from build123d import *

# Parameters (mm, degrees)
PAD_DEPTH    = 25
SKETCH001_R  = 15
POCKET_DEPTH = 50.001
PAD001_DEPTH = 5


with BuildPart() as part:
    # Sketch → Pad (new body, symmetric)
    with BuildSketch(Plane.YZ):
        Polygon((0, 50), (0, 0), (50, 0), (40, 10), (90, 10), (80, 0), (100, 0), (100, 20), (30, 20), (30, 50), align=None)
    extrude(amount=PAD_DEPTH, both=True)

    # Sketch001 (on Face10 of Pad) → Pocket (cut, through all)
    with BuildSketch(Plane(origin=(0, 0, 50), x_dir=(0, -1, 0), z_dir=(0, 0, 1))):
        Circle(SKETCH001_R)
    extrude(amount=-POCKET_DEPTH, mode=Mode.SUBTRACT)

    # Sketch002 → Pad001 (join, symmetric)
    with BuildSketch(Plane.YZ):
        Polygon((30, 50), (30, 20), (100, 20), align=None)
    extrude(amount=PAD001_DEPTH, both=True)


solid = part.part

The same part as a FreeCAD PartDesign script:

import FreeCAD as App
import Part
import Sketcher
from FreeCAD import Vector

doc = App.newDocument("Part")
body = doc.addObject("PartDesign::Body", "Body")

# Sketch on YZ plane
sketch1 = doc.addObject("Sketcher::SketchObject", "Sketch")
body.addObject(sketch1)
sketch1.AttachmentSupport = (doc.YZ_Plane, [""])
sketch1.MapMode = "FlatFace"
sketch1.addGeometry(Part.LineSegment(Vector(0, 50, 0), Vector(0, 0, 0)), False)
sketch1.addGeometry(Part.LineSegment(Vector(0, 0, 0), Vector(50, 0, 0)), False)
sketch1.addGeometry(Part.LineSegment(Vector(50, 0, 0), Vector(40, 10, 0)), False)
sketch1.addGeometry(Part.LineSegment(Vector(40, 10, 0), Vector(90, 10, 0)), False)
sketch1.addGeometry(Part.LineSegment(Vector(90, 10, 0), Vector(80, 0, 0)), False)
sketch1.addGeometry(Part.LineSegment(Vector(80, 0, 0), Vector(100, 0, 0)), False)
sketch1.addGeometry(Part.LineSegment(Vector(100, 0, 0), Vector(100, 20, 0)), False)
sketch1.addGeometry(Part.LineSegment(Vector(100, 20, 0), Vector(30, 20, 0)), False)
sketch1.addGeometry(Part.LineSegment(Vector(30, 20, 0), Vector(30, 50, 0)), False)
sketch1.addGeometry(Part.LineSegment(Vector(30, 50, 0), Vector(0, 50, 0)), False)
sketch1.addConstraint(Sketcher.Constraint("Coincident", 0, 2, 1, 1))
sketch1.addConstraint(Sketcher.Constraint("Coincident", 1, 2, 2, 1))
sketch1.addConstraint(Sketcher.Constraint("Coincident", 2, 2, 3, 1))
sketch1.addConstraint(Sketcher.Constraint("Coincident", 3, 2, 4, 1))
sketch1.addConstraint(Sketcher.Constraint("Coincident", 4, 2, 5, 1))
sketch1.addConstraint(Sketcher.Constraint("Coincident", 5, 2, 6, 1))
sketch1.addConstraint(Sketcher.Constraint("Coincident", 6, 2, 7, 1))
sketch1.addConstraint(Sketcher.Constraint("Coincident", 7, 2, 8, 1))
sketch1.addConstraint(Sketcher.Constraint("Coincident", 8, 2, 9, 1))
sketch1.addConstraint(Sketcher.Constraint("Coincident", 9, 2, 0, 1))
sketch1.addConstraint(Sketcher.Constraint("Vertical", 0))
sketch1.addConstraint(Sketcher.Constraint("Horizontal", 1))
sketch1.addConstraint(Sketcher.Constraint("Horizontal", 3))
sketch1.addConstraint(Sketcher.Constraint("Horizontal", 5))
sketch1.addConstraint(Sketcher.Constraint("Vertical", 6))
sketch1.addConstraint(Sketcher.Constraint("Horizontal", 7))
sketch1.addConstraint(Sketcher.Constraint("Vertical", 8))
sketch1.addConstraint(Sketcher.Constraint("Horizontal", 9))
sketch1.addConstraint(Sketcher.Constraint("Coincident", 0, 2, -1, 1))
sketch1.addConstraint(Sketcher.Constraint("PointOnObject", 4, 2, -1))
sketch1.addConstraint(Sketcher.Constraint("Perpendicular", 2, 4))
sketch1.addConstraint(Sketcher.Constraint("Equal", 1, 3))
sketch1.addConstraint(Sketcher.Constraint("Equal", 3, 0))
sketch1.addConstraint(Sketcher.Constraint("Equal", 5, 6))
sketch1.addConstraint(Sketcher.Constraint("Equal", 9, 8))
sketch1.addConstraint(Sketcher.Constraint("Equal", 2, 4))
sketch1.addConstraint(Sketcher.Constraint("DistanceX", 1, 1, 1, 2, 50.0))
sketch1.addConstraint(Sketcher.Constraint("DistanceX", 5, 1, 5, 2, 20.0))
sketch1.addConstraint(Sketcher.Constraint("DistanceX", 7, 2, 7, 1, 70.0))
pad1 = doc.addObject("PartDesign::Pad", "Pad")
body.addObject(pad1)
pad1.Profile = sketch1
pad1.Length = 50
pad1.Midplane = True

# Sketch on XY plane
sketch2 = doc.addObject("Sketcher::SketchObject", "Sketch001")
body.addObject(sketch2)
sketch2.AttachmentSupport = (doc.XY_Plane, [""])
sketch2.MapMode = "FlatFace"
sketch2.AttachmentOffset = App.Placement(Vector(0, 0, 50), App.Rotation())
sketch2.addGeometry(Part.Circle(Vector(0, 0, 0), Vector(0, 0, 1), 15), False)
sketch2.addConstraint(Sketcher.Constraint("Coincident", 0, 3, -1, 1))
sketch2.addConstraint(Sketcher.Constraint("Diameter", 0, 30.0))
pocket1 = doc.addObject("PartDesign::Pocket", "Pocket")
body.addObject(pocket1)
pocket1.Profile = sketch2
pocket1.Type = "ThroughAll"

# Sketch on YZ plane
sketch3 = doc.addObject("Sketcher::SketchObject", "Sketch002")
body.addObject(sketch3)
sketch3.AttachmentSupport = (doc.YZ_Plane, [""])
sketch3.MapMode = "FlatFace"
sketch3.addGeometry(Part.LineSegment(Vector(30, 50, 0), Vector(30, 20, 0)), False)
sketch3.addGeometry(Part.LineSegment(Vector(30, 20, 0), Vector(100, 20, 0)), False)
sketch3.addGeometry(Part.LineSegment(Vector(100, 20, 0), Vector(30, 50, 0)), False)
sketch3.addConstraint(Sketcher.Constraint("Coincident", 0, 2, 1, 1))
sketch3.addConstraint(Sketcher.Constraint("Coincident", 1, 2, 2, 1))
sketch3.addConstraint(Sketcher.Constraint("Coincident", 2, 2, 0, 1))
sketch3.addConstraint(Sketcher.Constraint("Vertical", 0))
sketch3.addConstraint(Sketcher.Constraint("Horizontal", 1))
sketch3.addConstraint(Sketcher.Constraint("DistanceX", 1, 1, 1, 2, 70.0))
sketch3.addConstraint(Sketcher.Constraint("DistanceY", 0, 2, 0, 1, 30.0))
sketch3.addConstraint(Sketcher.Constraint("DistanceX", -1, 1, 0, 2, 30.0))
sketch3.addConstraint(Sketcher.Constraint("DistanceY", -1, 1, 0, 2, 20.0))
pad2 = doc.addObject("PartDesign::Pad", "Pad001")
body.addObject(pad2)
pad2.Profile = sketch3
pad2.Length = 10
pad2.Midplane = True

doc.recompute()
